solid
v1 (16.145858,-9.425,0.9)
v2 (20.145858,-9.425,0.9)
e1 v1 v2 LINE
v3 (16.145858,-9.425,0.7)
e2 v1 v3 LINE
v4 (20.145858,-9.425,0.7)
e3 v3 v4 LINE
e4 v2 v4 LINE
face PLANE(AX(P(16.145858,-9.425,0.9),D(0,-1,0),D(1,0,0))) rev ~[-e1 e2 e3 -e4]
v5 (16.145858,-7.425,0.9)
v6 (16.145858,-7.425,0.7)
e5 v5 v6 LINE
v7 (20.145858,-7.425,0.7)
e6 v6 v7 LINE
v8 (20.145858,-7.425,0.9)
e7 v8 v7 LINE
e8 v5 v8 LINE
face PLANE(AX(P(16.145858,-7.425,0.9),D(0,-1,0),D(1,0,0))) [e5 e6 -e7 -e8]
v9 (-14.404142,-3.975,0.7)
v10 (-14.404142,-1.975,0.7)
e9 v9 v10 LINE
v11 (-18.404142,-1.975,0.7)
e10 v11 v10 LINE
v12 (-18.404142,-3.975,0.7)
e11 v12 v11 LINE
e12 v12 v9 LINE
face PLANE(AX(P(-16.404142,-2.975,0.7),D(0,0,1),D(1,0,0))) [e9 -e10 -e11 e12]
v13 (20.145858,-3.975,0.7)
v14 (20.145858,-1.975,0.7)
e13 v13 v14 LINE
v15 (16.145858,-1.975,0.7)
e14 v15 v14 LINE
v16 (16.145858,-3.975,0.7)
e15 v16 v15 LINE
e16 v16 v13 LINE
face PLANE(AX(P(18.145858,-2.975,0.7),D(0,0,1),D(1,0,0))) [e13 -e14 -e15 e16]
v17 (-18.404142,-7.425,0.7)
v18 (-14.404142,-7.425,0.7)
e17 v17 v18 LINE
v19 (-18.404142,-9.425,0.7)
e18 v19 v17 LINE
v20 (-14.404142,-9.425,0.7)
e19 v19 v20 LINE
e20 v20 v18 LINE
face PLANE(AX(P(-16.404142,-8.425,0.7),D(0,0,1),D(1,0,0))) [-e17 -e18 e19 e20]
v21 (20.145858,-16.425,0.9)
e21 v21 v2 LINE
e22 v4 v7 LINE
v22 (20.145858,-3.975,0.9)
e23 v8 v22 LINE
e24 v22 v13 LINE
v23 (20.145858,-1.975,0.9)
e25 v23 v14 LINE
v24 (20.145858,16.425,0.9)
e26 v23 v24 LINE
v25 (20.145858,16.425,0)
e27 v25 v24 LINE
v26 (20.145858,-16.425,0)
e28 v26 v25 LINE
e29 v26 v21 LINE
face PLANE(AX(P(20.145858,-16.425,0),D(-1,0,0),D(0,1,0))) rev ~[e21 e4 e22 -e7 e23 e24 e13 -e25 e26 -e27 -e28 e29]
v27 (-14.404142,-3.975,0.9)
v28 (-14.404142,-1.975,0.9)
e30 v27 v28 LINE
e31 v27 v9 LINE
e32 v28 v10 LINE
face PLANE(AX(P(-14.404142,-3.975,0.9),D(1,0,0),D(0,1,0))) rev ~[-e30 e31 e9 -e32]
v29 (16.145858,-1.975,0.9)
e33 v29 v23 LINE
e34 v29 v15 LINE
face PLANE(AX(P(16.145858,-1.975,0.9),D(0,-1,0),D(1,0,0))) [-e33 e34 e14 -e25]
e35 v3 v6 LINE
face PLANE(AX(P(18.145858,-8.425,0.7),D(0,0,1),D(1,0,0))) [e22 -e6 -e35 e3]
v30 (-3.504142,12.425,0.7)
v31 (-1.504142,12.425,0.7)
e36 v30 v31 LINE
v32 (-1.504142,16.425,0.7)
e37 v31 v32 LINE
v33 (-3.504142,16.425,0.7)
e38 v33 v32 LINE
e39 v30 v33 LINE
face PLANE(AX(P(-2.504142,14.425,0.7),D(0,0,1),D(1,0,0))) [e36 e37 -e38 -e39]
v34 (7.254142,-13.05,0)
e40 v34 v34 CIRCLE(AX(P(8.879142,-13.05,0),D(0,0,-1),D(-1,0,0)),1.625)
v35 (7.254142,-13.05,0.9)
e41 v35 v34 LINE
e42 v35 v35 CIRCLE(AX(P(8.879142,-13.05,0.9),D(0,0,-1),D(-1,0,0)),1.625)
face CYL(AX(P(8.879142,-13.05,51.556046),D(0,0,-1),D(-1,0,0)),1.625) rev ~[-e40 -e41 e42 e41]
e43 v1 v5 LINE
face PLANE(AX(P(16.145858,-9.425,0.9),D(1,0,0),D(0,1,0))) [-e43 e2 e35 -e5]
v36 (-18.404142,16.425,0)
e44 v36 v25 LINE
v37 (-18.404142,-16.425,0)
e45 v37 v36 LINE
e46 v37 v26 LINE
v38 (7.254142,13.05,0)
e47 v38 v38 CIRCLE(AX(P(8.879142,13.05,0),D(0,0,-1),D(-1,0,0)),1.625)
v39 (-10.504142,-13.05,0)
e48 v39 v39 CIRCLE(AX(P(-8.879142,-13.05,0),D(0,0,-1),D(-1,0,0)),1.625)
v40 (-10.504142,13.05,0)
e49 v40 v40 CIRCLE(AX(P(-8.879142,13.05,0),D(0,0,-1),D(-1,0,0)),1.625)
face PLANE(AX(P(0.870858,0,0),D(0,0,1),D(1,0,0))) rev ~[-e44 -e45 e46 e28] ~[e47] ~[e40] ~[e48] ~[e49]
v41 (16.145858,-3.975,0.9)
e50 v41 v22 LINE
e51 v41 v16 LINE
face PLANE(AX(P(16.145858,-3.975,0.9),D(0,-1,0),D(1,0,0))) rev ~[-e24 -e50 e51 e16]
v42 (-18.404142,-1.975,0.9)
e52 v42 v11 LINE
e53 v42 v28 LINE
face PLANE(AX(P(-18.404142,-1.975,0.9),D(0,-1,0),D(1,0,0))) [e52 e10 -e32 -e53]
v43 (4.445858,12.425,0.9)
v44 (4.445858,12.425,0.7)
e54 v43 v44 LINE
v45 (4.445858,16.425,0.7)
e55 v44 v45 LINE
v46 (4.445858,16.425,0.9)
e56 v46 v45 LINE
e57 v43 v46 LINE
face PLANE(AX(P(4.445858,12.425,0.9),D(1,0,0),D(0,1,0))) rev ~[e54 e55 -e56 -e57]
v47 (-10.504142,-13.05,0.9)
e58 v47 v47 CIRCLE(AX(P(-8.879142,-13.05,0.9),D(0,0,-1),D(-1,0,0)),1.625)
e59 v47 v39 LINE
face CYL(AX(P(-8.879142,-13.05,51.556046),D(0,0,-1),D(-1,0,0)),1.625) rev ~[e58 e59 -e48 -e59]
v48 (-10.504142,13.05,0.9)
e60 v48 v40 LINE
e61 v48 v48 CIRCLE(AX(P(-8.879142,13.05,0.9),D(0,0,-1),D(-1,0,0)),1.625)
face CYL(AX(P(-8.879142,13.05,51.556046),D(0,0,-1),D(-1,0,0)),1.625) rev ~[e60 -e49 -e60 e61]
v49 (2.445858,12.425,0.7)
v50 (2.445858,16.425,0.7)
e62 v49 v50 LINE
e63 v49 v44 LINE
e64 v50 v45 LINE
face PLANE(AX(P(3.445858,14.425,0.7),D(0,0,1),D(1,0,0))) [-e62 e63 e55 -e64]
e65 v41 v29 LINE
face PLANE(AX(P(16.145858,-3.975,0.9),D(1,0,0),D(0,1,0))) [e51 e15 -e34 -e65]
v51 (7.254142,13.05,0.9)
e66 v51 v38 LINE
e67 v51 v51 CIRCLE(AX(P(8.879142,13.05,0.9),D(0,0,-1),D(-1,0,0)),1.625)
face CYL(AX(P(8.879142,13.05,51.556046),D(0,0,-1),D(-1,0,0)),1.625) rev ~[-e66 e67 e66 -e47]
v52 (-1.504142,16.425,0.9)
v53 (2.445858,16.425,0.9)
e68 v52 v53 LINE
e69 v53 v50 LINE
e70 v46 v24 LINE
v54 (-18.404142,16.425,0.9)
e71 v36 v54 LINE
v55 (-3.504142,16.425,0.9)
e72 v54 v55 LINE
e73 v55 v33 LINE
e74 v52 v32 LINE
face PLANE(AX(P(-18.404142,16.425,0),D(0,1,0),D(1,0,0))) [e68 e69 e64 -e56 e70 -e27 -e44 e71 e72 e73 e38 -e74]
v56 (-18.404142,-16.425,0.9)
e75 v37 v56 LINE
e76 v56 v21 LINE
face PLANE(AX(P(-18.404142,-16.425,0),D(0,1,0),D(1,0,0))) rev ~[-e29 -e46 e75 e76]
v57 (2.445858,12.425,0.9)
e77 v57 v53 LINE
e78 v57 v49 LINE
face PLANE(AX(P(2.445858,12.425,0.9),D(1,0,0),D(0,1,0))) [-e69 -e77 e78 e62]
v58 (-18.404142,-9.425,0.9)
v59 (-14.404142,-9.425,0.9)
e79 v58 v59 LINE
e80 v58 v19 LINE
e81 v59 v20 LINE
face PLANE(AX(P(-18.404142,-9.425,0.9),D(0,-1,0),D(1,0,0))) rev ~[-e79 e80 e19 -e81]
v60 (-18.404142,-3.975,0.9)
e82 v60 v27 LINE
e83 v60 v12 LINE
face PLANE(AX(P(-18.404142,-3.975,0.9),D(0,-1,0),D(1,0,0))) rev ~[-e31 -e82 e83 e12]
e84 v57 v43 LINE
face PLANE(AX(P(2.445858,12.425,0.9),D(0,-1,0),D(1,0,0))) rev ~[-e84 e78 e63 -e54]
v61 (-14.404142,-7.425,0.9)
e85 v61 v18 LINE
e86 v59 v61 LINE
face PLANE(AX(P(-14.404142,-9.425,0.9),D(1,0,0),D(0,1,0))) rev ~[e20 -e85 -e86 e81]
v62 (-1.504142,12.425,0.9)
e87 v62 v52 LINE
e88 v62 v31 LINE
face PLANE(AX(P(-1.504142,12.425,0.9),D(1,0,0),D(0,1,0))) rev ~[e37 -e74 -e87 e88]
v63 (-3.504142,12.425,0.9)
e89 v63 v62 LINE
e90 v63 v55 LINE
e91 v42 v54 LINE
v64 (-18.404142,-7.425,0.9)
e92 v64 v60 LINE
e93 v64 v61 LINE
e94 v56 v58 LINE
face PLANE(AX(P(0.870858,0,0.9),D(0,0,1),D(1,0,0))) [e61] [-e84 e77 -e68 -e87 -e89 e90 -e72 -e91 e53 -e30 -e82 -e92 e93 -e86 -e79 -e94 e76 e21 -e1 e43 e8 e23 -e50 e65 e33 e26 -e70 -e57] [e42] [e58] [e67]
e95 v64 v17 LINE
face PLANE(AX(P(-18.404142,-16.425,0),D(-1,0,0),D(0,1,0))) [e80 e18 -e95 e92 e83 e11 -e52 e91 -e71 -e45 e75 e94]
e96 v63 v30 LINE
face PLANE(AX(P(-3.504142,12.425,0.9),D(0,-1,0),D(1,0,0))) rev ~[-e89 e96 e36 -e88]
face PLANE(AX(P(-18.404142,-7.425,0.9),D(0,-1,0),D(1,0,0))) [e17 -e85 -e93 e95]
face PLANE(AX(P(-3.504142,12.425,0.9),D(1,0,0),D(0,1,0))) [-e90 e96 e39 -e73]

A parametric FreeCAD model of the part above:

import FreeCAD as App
import Part
import Sketcher

doc = App.newDocument("Part")
body = doc.addObject("PartDesign::Body", "Body")

sketch1 = body.newObject("Sketcher::SketchObject", "Sketch")
sketch1.AttachmentSupport = (doc.getObject("XY_Plane"), [""])
sketch1.MapMode = "FlatFace"
sketch1.addGeometry(Part.LineSegment(App.Vector(-18, 16, 0), App.Vector(-18, -16, 0)), False)
sketch1.addGeometry(Part.LineSegment(App.Vector(-18, -16, 0), App.Vector(20, -16, 0)), False)
sketch1.addGeometry(Part.LineSegment(App.Vector(20, -16, 0), App.Vector(20, 16, 0)), False)
sketch1.addGeometry(Part.LineSegment(App.Vector(20, 16, 0), App.Vector(-18, 16, 0)), False)
sketch1.addConstraint(Sketcher.Constraint("Coincident", 0, 2, 1, 1))
sketch1.addConstraint(Sketcher.Constraint("Coincident", 1, 2, 2, 1))
sketch1.addConstraint(Sketcher.Constraint("Coincident", 2, 2, 3, 1))
sketch1.addConstraint(Sketcher.Constraint("Coincident", 3, 2, 0, 1))
sketch1.addConstraint(Sketcher.Constraint("Vertical", 0))
sketch1.addConstraint(Sketcher.Constraint("Horizontal", 1))
sketch1.addConstraint(Sketcher.Constraint("Vertical", 2))
sketch1.addConstraint(Sketcher.Constraint("Horizontal", 3))
sketch1.addConstraint(Sketcher.Constraint("DistanceX", 1, 1, 1, 2, 38.55))
sketch1.addConstraint(Sketcher.Constraint("DistanceY", 0, 2, 0, 1, 32.85))
sketch1.addConstraint(Sketcher.Constraint("DistanceY", 0, 2, -1, 1, 16.425))
sketch1.addConstraint(Sketcher.Constraint("DistanceX", 0, 2, -1, 1, 18.404142))
pad1 = body.newObject("PartDesign::Pad", "Pad")
pad1.Profile = sketch1
pad1.Length = 0.9

sketch2 = body.newObject("Sketcher::SketchObject", "Sketch001")
sketch2.AttachmentSupport = (doc.getObject("XY_Plane"), [""])
sketch2.MapMode = "FlatFace"
sketch2.AttachmentOffset = App.Placement(App.Vector(0, 0, 0.9), App.Rotation())
sketch2.addGeometry(Part.Circle(App.Vector(-8.9, 13.1, 0), App.Vector(0, 0, 1), 1.6), False)
sketch2.addGeometry(Part.Circle(App.Vector(8.9, 13.1, 0), App.Vector(0, 0, 1), 1.6), False)
sketch2.addGeometry(Part.Circle(App.Vector(8.9, -13.1, 0), App.Vector(0, 0, 1), 1.6), False)
sketch2.addGeometry(Part.Circle(App.Vector(-8.9, -13.1, 0), App.Vector(0, 0, 1), 1.6), False)
sketch2.addConstraint(Sketcher.Constraint("Equal", 0, 1))
sketch2.addConstraint(Sketcher.Constraint("Equal", 1, 2))
sketch2.addConstraint(Sketcher.Constraint("Equal", 2, 3))
sketch2.addConstraint(Sketcher.Constraint("Symmetric", 0, 3, 2, 3, -1, 1))
sketch2.addConstraint(Sketcher.Constraint("Symmetric", 1, 3, 3, 3, -1, 1))
sketch2.addConstraint(Sketcher.Constraint("Symmetric", 0, 3, 1, 3, -2))
sketch2.addConstraint(Sketcher.Constraint("Diameter", 0, 3.25))
sketch2.addConstraint(Sketcher.Constraint("DistanceY", 2, 3, 1, 3, 26.1))
sketch2.addConstraint(Sketcher.Constraint("DistanceX", 0, 3, -1, 1, 8.879142))
doc.recompute()
hole = body.newObject("PartDesign::Hole", "Hole")
hole.Profile = sketch2
hole.ThreadType = "None"
hole.Diameter = 3.25
hole.DepthType = "ThroughAll"

sketch3 = body.newObject("Sketcher::SketchObject", "Sketch002")
sketch3.AttachmentSupport = (doc.getObject("XY_Plane"), [""])
sketch3.MapMode = "FlatFace"
sketch3.AttachmentOffset = App.Placement(App.Vector(0, 0, 0.9), App.Rotation())
sketch3.addGeometry(Part.LineSegment(App.Vector(-3.5, 16.4, 0), App.Vector(-3.5, 12.4, 0)), False)
sketch3.addGeometry(Part.LineSegment(App.Vector(-3.5, 12.4, 0), App.Vector(-1.5, 12.4, 0)), False)
sketch3.addGeometry(Part.LineSegment(App.Vector(-1.5, 12.4, 0), App.Vector(-1.5, 16.4, 0)), False)
sketch3.addGeometry(Part.LineSegment(App.Vector(-1.5, 16.4, 0), App.Vector(-3.5, 16.4, 0)), False)
sketch3.addGeometry(Part.LineSegment(App.Vector(2.4, 16.4, 0), App.Vector(2.4, 12.4, 0)), False)
sketch3.addGeometry(Part.LineSegment(App.Vector(2.4, 12.4, 0), App.Vector(4.4, 12.4, 0)), False)
sketch3.addGeometry(Part.LineSegment(App.Vector(4.4, 12.4, 0), App.Vector(4.4, 16.4, 0)), False)
sketch3.addGeometry(Part.LineSegment(App.Vector(4.4, 16.4, 0), App.Vector(2.4, 16.4, 0)), False)
sketch3.addGeometry(Part.LineSegment(App.Vector(16.1, -2, 0), App.Vector(16.1, -4, 0)), False)
sketch3.addGeometry(Part.LineSegment(App.Vector(16.1, -4, 0), App.Vector(20.1, -4, 0)), False)
sketch3.addGeometry(Part.LineSegment(App.Vector(20.1, -4, 0), App.Vector(20.1, -2, 0)), False)
sketch3.addGeometry(Part.LineSegment(App.Vector(20.1, -2, 0), App.Vector(16.1, -2, 0)), False)
sketch3.addGeometry(Part.LineSegment(App.Vector(16.1, -7.4, 0), App.Vector(16.1, -9.4, 0)), False)
sketch3.addGeometry(Part.LineSegment(App.Vector(16.1, -9.4, 0), App.Vector(20.1, -9.4, 0)), False)
sketch3.addGeometry(Part.LineSegment(App.Vector(20.1, -9.4, 0), App.Vector(20.1, -7.4, 0)), False)
sketch3.addGeometry(Part.LineSegment(App.Vector(20.1, -7.4, 0), App.Vector(16.1, -7.4, 0)), False)
sketch3.addGeometry(Part.LineSegment(App.Vector(-18.4, -7.4, 0), App.Vector(-18.4, -9.4, 0)), False)
sketch3.addGeometry(Part.LineSegment(App.Vector(-18.4, -9.4, 0), App.Vector(-14.4, -9.4, 0)), False)
sketch3.addGeometry(Part.LineSegment(App.Vector(-14.4, -9.4, 0), App.Vector(-14.4, -7.4, 0)), False)
sketch3.addGeometry(Part.LineSegment(App.Vector(-14.4, -7.4, 0), App.Vector(-18.4, -7.4, 0)), False)
sketch3.addGeometry(Part.LineSegment(App.Vector(-18.4, -2, 0), App.Vector(-18.4, -4, 0)), False)
sketch3.addGeometry(Part.LineSegment(App.Vector(-18.4, -4, 0), App.Vector(-14.4, -4, 0)), False)
sketch3.addGeometry(Part.LineSegment(App.Vector(-14.4, -4, 0), App.Vector(-14.4, -2, 0)), False)
sketch3.addGeometry(Part.LineSegment(App.Vector(-14.4, -2, 0), App.Vector(-18.4, -2, 0)), False)
sketch3.addConstraint(Sketcher.Constraint("Coincident", 0, 2, 1, 1))
sketch3.addConstraint(Sketcher.Constraint("Coincident", 1, 2, 2, 1))
sketch3.addConstraint(Sketcher.Constraint("Coincident", 2, 2, 3, 1))
sketch3.addConstraint(Sketcher.Constraint("Coincident", 3, 2, 0, 1))
sketch3.addConstraint(Sketcher.Constraint("Coincident", 4, 2, 5, 1))
sketch3.addConstraint(Sketcher.Constraint("Coincident", 5, 2, 6, 1))
sketch3.addConstraint(Sketcher.Constraint("Coincident", 6, 2, 7, 1))
sketch3.addConstraint(Sketcher.Constraint("Coincident", 7, 2, 4, 1))
sketch3.addConstraint(Sketcher.Constraint("Coincident", 8, 2, 9, 1))
sketch3.addConstraint(Sketcher.Constraint("Coincident", 9, 2, 10, 1))
sketch3.addConstraint(Sketcher.Constraint("Coincident", 10, 2, 11, 1))
sketch3.addConstraint(Sketcher.Constraint("Coincident", 11, 2, 8, 1))
sketch3.addConstraint(Sketcher.Constraint("Coincident", 12, 2, 13, 1))
sketch3.addConstraint(Sketcher.Constraint("Coincident", 13, 2, 14, 1))
sketch3.addConstraint(Sketcher.Constraint("Coincident", 14, 2, 15, 1))
sketch3.addConstraint(Sketcher.Constraint("Coincident", 15, 2, 12, 1))
sketch3.addConstraint(Sketcher.Constraint("Coincident", 16, 2, 17, 1))
sketch3.addConstraint(Sketcher.Constraint("Coincident", 17, 2, 18, 1))
sketch3.addConstraint(Sketcher.Constraint("Coincident", 18, 2, 19, 1))
sketch3.addConstraint(Sketcher.Constraint("Coincident", 19, 2, 16, 1))
sketch3.addConstraint(Sketcher.Constraint("Coincident", 20, 2, 21, 1))
sketch3.addConstraint(Sketcher.Constraint("Coincident", 21, 2, 22, 1))
sketch3.addConstraint(Sketcher.Constraint("Coincident", 22, 2, 23, 1))
sketch3.addConstraint(Sketcher.Constraint("Coincident", 23, 2, 20, 1))
sketch3.addConstraint(Sketcher.Constraint("Vertical", 0))
sketch3.addConstraint(Sketcher.Constraint("Horizontal", 1))
sketch3.addConstraint(Sketcher.Constraint("Vertical", 2))
sketch3.addConstraint(Sketcher.Constraint("Horizontal", 3))
sketch3.addConstraint(Sketcher.Constraint("Vertical", 4))
sketch3.addConstraint(Sketcher.Constraint("Horizontal", 5))
sketch3.addConstraint(Sketcher.Constraint("Vertical", 6))
sketch3.addConstraint(Sketcher.Constraint("Horizontal", 7))
sketch3.addConstraint(Sketcher.Constraint("Vertical", 8))
sketch3.addConstraint(Sketcher.Constraint("Horizontal", 9))
sketch3.addConstraint(Sketcher.Constraint("Vertical", 10))
sketch3.addConstraint(Sketcher.Constraint("Horizontal", 11))
sketch3.addConstraint(Sketcher.Constraint("Vertical", 12))
sketch3.addConstraint(Sketcher.Constraint("Horizontal", 13))
sketch3.addConstraint(Sketcher.Constraint("Vertical", 14))
sketch3.addConstraint(Sketcher.Constraint("Horizontal", 15))
sketch3.addConstraint(Sketcher.Constraint("Vertical", 16))
sketch3.addConstraint(Sketcher.Constraint("Horizontal", 17))
sketch3.addConstraint(Sketcher.Constraint("Vertical", 18))
sketch3.addConstraint(Sketcher.Constraint("Horizontal", 19))
sketch3.addConstraint(Sketcher.Constraint("Vertical", 20))
sketch3.addConstraint(Sketcher.Constraint("Horizontal", 21))
sketch3.addConstraint(Sketcher.Constraint("Vertical", 22))
sketch3.addConstraint(Sketcher.Constraint("Horizontal", 23))
sketch3.addConstraint(Sketcher.Constraint("Horizontal", 1, 2, 4, 2))
sketch3.addConstraint(Sketcher.Constraint("Horizontal", 3, 2, 6, 2))
sketch3.addConstraint(Sketcher.Constraint("Horizontal", 13, 2, 16, 2))
sketch3.addConstraint(Sketcher.Constraint("Horizontal", 15, 2, 18, 2))
sketch3.addConstraint(Sketcher.Constraint("Horizontal", 9, 2, 20, 2))
sketch3.addConstraint(Sketcher.Constraint("Horizontal", 11, 2, 22, 2))
sketch3.addConstraint(Sketcher.Constraint("Vertical", 11, 2, 12, 2))
sketch3.addConstraint(Sketcher.Constraint("Vertical", 10, 2, 13, 2))
sketch3.addConstraint(Sketcher.Constraint("Vertical", 19, 2, 20, 2))
sketch3.addConstraint(Sketcher.Constraint("Vertical", 18, 2, 21, 2))
sketch3.addConstraint(Sketcher.Constraint("Equal", 3, 5))
sketch3.addConstraint(Sketcher.Constraint("Equal", 15, 17))
sketch3.addConstraint(Sketcher.Constraint("Equal", 23, 0))
sketch3.addConstraint(Sketcher.Constraint("Equal", 7, 8))
sketch3.addConstraint(Sketcher.Constraint("Equal", 10, 12))
sketch3.addConstraint(Sketcher.Constraint("DistanceX", 1, 1, 1, 2, 2.0))
sketch3.addConstraint(Sketcher.Constraint("DistanceX", 9, 1, 9, 2, 4.0))
sketch3.addConstraint(Sketcher.Constraint("DistanceX", 5, 2, 8, 2, 11.7))
sketch3.addConstraint(Sketcher.Constraint("DistanceY", 8, 2, 5, 2, 16.4))
sketch3.addConstraint(Sketcher.Constraint("DistanceX", 16, 2, 0, 2, 14.9))
sketch3.addConstraint(Sketcher.Constraint("DistanceX", 1, 2, 4, 2, 3.95))
sketch3.addConstraint(Sketcher.Constraint("DistanceY", 12, 2, 8, 2, 5.45))
sketch3.addConstraint(Sketcher.Constraint("DistanceY", -1, 1, 0, 2, 12.425))
sketch3.addConstraint(Sketcher.Constraint("DistanceX", 0, 2, -1, 1, 3.504142))
pocket1 = body.newObject("PartDesign::Pocket", "Pocket")
pocket1.Profile = sketch3
pocket1.Length = 0.2

doc.recompute()
